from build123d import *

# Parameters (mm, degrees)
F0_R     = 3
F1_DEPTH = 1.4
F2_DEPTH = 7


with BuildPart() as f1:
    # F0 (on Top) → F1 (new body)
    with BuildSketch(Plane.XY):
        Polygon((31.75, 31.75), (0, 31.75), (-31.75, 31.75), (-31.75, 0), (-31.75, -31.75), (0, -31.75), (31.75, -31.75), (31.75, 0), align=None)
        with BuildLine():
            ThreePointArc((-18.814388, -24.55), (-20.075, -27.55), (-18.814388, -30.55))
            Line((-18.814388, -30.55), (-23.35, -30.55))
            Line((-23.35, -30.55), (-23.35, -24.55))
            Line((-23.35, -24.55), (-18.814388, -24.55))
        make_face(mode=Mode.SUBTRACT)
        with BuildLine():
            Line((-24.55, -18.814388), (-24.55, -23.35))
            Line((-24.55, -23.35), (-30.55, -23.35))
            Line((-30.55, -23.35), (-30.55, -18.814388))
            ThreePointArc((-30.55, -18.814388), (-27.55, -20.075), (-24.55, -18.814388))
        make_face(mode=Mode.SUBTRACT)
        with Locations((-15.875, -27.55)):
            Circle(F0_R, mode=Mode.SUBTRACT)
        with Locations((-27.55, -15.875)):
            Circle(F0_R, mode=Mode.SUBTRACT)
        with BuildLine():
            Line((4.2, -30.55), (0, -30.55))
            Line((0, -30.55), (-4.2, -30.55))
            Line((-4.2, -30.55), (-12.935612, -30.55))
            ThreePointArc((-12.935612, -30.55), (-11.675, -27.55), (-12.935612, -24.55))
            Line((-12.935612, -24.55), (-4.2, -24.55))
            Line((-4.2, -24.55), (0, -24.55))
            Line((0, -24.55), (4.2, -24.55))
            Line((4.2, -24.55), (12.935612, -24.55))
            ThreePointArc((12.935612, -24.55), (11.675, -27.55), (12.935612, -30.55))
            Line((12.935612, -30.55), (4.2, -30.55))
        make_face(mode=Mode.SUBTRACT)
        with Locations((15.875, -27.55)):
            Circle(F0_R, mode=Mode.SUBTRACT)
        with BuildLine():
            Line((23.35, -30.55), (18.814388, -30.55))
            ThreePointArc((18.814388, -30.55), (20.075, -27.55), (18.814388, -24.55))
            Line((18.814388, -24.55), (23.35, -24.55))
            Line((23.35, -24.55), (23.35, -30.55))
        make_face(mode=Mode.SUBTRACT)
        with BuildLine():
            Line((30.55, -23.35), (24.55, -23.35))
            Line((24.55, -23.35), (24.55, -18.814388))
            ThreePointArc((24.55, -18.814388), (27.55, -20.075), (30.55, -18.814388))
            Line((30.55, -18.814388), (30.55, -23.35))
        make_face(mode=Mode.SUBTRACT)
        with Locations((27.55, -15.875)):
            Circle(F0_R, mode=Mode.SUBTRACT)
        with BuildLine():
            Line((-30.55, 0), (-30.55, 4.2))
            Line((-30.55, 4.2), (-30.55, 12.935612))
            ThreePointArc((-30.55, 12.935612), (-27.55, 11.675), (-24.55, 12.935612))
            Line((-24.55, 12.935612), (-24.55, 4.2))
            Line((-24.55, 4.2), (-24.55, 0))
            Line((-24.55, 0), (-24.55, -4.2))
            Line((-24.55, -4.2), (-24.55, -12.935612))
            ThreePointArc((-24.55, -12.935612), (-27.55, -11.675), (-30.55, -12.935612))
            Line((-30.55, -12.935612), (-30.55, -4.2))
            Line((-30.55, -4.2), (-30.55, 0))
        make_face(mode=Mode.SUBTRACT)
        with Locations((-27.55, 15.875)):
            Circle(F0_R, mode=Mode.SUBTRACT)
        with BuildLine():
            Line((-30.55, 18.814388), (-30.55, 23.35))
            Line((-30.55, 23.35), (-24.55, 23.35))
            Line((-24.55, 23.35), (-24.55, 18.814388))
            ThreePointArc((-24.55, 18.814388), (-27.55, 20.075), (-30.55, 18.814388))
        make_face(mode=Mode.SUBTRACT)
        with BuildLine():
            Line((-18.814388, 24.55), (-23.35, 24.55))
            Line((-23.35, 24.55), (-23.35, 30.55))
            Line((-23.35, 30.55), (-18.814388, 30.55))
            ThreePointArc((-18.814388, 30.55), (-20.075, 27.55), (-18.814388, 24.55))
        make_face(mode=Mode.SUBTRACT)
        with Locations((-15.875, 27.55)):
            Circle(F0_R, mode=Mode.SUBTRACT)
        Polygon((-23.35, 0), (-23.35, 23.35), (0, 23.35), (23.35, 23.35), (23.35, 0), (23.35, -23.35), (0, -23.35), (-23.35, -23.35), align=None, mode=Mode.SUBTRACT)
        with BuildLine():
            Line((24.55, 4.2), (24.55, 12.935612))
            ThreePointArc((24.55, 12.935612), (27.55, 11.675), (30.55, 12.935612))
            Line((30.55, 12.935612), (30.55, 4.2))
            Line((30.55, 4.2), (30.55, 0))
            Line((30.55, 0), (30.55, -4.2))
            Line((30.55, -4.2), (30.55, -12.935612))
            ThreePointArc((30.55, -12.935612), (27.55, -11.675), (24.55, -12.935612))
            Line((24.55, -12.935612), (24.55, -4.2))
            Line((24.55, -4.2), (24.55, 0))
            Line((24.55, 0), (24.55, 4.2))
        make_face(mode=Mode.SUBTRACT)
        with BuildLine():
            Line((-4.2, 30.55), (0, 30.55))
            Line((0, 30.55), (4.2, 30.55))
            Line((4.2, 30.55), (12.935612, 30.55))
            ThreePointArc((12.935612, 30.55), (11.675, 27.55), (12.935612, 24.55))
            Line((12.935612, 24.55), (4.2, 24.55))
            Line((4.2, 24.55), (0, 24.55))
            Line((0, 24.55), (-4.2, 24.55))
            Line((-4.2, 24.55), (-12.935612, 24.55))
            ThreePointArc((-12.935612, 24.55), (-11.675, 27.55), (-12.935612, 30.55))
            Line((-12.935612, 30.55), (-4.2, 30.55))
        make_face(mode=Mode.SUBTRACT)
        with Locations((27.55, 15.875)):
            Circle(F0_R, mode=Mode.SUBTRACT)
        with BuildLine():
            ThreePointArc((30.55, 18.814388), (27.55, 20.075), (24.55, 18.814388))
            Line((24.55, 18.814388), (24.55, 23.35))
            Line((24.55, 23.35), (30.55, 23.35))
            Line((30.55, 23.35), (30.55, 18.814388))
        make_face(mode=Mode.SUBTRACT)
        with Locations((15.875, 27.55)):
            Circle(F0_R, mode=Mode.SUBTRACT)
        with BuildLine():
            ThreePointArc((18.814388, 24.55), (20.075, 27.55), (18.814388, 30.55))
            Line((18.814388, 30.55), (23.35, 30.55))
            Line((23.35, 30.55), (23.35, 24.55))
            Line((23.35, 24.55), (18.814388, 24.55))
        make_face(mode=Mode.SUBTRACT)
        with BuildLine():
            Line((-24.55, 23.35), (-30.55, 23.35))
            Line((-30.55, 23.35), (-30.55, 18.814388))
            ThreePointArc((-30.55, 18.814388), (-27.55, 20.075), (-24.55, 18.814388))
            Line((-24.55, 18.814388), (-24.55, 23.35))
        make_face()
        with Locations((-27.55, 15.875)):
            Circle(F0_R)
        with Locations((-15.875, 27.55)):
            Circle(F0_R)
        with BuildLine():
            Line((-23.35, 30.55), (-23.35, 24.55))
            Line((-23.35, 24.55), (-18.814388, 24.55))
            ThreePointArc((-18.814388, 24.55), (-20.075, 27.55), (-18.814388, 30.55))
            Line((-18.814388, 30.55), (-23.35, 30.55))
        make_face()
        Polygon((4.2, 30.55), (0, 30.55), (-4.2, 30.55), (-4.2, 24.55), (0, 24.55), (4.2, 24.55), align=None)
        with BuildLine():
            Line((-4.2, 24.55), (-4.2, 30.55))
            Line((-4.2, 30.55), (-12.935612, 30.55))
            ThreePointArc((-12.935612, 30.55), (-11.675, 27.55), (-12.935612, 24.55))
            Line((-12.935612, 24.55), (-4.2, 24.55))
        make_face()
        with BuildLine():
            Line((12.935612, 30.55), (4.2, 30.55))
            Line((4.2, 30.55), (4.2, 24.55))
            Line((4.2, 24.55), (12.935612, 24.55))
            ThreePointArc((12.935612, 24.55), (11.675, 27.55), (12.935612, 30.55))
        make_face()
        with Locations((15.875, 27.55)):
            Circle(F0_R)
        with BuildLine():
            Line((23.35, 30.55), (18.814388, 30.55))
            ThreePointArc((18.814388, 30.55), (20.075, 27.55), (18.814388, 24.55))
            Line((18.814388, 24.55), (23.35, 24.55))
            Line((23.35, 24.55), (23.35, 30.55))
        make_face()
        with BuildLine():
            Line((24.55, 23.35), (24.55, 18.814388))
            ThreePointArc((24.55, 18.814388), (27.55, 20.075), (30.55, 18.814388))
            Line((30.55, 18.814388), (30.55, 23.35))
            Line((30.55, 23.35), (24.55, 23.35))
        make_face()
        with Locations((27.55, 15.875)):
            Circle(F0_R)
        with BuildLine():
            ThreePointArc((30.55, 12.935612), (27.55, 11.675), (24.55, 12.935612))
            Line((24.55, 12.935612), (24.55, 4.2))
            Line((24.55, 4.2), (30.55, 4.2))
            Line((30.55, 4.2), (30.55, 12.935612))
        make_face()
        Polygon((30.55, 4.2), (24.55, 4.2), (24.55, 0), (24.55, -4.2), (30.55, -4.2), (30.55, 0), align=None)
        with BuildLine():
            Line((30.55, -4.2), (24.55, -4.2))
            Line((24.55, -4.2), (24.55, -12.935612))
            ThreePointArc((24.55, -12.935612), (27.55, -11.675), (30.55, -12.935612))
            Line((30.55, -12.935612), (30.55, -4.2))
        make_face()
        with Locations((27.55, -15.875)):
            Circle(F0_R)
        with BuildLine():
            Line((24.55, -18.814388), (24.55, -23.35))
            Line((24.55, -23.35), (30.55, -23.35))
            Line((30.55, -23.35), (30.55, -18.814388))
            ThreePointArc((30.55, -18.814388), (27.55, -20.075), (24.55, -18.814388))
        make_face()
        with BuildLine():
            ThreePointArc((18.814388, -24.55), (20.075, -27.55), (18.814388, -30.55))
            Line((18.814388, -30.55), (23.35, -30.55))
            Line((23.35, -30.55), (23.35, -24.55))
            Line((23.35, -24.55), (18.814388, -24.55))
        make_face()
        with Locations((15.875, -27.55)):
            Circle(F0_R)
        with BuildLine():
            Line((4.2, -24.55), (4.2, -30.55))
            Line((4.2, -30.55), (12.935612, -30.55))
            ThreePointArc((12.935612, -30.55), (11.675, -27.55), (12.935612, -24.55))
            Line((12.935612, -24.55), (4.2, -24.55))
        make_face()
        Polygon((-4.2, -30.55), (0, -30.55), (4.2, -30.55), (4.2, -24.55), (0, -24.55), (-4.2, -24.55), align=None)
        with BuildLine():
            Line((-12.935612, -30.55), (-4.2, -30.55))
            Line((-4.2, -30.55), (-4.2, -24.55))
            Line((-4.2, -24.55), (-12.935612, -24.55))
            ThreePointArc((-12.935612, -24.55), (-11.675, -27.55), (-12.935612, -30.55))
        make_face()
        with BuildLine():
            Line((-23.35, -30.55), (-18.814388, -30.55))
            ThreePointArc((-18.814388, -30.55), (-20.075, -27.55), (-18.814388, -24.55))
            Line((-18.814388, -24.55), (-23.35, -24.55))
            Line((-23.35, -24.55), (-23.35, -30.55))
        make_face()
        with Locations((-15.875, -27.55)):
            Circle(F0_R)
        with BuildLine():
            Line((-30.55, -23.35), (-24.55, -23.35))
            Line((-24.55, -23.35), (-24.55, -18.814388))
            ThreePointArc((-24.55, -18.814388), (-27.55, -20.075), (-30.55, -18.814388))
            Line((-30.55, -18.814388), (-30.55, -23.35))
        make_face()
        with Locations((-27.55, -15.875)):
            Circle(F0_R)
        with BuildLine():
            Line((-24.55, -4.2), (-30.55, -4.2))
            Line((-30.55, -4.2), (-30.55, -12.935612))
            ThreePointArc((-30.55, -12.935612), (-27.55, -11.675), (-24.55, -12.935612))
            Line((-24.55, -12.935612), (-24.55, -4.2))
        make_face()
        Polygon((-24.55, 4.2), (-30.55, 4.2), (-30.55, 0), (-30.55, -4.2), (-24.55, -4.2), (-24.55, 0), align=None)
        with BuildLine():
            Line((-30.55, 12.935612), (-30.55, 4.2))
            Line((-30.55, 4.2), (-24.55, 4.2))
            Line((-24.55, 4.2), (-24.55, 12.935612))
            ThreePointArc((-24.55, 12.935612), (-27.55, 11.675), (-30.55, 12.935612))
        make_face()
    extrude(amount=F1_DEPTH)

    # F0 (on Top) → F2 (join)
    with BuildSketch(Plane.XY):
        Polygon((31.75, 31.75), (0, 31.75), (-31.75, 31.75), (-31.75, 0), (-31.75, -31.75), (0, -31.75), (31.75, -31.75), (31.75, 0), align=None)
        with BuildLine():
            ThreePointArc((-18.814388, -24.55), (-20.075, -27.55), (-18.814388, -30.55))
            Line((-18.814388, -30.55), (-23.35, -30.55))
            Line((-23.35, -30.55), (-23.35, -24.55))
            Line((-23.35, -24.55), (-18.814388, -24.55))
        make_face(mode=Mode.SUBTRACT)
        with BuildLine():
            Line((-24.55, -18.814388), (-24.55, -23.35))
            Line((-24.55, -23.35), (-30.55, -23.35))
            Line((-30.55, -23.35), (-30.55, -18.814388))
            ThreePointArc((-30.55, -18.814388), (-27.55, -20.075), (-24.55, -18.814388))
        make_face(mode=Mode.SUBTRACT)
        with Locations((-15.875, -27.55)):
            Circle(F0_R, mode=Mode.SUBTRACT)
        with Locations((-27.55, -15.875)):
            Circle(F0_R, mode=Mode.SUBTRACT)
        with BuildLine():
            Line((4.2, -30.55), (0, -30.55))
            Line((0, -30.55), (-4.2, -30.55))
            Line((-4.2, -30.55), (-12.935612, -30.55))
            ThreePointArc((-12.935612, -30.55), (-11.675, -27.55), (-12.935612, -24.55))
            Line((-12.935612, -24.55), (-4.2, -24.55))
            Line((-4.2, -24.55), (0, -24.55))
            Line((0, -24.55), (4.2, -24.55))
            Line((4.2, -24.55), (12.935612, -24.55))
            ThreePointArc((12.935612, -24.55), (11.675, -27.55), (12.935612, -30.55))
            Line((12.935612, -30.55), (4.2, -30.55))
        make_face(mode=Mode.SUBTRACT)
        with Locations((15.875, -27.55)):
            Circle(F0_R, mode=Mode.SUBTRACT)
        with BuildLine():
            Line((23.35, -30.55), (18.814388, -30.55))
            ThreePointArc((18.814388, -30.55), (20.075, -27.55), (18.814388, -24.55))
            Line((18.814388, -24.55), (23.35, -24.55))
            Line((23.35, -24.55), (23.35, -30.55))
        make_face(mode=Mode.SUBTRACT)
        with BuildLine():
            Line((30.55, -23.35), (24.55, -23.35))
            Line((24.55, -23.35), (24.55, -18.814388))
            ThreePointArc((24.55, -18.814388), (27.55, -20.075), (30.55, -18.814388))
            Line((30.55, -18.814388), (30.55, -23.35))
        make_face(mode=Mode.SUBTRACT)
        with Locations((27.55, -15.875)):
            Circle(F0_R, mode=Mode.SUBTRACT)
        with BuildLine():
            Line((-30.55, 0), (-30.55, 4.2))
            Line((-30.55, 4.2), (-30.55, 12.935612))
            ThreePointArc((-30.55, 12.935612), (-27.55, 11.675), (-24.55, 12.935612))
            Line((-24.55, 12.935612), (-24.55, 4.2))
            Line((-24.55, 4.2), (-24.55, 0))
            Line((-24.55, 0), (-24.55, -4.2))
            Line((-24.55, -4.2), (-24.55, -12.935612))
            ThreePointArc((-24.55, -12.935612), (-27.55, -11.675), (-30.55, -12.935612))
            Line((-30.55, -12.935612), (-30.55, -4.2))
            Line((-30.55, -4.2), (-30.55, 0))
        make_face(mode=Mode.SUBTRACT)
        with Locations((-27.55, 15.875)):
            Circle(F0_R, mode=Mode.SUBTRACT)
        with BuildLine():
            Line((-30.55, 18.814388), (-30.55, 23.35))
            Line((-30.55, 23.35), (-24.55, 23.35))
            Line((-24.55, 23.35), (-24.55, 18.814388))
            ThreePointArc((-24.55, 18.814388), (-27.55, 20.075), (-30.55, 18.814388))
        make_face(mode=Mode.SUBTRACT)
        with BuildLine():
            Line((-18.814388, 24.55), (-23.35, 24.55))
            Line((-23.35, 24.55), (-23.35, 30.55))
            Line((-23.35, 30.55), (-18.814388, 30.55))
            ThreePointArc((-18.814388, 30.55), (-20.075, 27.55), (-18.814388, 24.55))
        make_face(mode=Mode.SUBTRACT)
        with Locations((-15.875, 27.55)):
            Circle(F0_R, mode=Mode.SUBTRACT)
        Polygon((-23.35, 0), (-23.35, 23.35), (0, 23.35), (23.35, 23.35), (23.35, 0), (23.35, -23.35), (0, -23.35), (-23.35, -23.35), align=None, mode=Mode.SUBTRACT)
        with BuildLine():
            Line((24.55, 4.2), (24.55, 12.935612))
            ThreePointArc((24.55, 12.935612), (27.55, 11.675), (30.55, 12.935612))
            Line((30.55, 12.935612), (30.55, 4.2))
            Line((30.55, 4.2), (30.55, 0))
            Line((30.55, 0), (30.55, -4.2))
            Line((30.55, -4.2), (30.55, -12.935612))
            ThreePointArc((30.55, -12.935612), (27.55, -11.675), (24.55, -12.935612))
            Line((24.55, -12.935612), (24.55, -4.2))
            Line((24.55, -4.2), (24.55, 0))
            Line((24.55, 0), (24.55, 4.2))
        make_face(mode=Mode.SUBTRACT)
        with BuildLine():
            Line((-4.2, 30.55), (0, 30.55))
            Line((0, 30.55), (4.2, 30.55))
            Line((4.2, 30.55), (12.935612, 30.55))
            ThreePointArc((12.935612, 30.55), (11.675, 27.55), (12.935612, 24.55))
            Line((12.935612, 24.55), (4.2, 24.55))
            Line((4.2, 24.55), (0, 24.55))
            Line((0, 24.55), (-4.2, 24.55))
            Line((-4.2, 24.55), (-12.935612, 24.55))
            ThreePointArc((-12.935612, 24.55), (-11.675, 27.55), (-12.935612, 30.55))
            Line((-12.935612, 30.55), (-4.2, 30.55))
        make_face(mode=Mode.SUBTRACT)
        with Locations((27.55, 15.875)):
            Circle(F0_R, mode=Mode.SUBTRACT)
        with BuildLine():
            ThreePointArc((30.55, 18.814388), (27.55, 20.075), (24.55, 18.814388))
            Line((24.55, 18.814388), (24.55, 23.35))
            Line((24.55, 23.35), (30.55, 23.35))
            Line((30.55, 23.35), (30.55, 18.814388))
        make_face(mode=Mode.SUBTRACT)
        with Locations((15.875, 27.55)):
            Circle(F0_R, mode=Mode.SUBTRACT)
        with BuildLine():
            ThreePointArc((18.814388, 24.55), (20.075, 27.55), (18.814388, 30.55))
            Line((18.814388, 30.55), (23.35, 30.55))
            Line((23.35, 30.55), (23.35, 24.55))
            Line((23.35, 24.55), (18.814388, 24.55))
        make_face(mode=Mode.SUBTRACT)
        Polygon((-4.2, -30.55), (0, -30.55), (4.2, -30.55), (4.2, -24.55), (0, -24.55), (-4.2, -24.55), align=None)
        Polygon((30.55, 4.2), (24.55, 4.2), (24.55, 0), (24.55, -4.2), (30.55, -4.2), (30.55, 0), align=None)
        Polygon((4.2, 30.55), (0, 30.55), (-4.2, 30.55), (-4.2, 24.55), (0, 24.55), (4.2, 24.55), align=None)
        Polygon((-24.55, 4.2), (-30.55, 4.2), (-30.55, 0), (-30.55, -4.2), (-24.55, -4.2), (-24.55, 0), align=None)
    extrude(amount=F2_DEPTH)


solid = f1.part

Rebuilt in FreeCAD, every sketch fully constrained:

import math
import FreeCAD as App
import Part
import Sketcher
from FreeCAD import Vector

doc = App.newDocument("Part")
body = doc.addObject("PartDesign::Body", "Body")

sketch1 = doc.addObject("Sketcher::SketchObject", "Sketch")
body.addObject(sketch1)
sketch1.AttachmentSupport = (doc.XY_Plane, [""])
sketch1.MapMode = "FlatFace"
sketch1.addGeometry(Part.LineSegment(Vector(32, 32, 0), Vector(-32, 32, 0)), False)
sketch1.addGeometry(Part.LineSegment(Vector(-32, 32, 0), Vector(-32, -32, 0)), False)
sketch1.addGeometry(Part.LineSegment(Vector(-32, -32, 0), Vector(32, -32, 0)), False)
sketch1.addGeometry(Part.LineSegment(Vector(32, -32, 0), Vector(32, 32, 0)), False)
sketch1.addGeometry(Part.LineSegment(Vector(-23, -23, 0), Vector(-23, 23, 0)), False)
sketch1.addGeometry(Part.LineSegment(Vector(-23, 23, 0), Vector(23, 23, 0)), False)
sketch1.addGeometry(Part.LineSegment(Vector(23, 23, 0), Vector(23, -23, 0)), False)
sketch1.addGeometry(Part.LineSegment(Vector(23, -23, 0), Vector(-23, -23, 0)), False)
sketch1.addConstraint(Sketcher.Constraint("Coincident", 0, 2, 1, 1))
sketch1.addConstraint(Sketcher.Constraint("Coincident", 1, 2, 2, 1))
sketch1.addConstraint(Sketcher.Constraint("Coincident", 2, 2, 3, 1))
sketch1.addConstraint(Sketcher.Constraint("Coincident", 3, 2, 0, 1))
sketch1.addConstraint(Sketcher.Constraint("Coincident", 4, 2, 5, 1))
sketch1.addConstraint(Sketcher.Constraint("Coincident", 5, 2, 6, 1))
sketch1.addConstraint(Sketcher.Constraint("Coincident", 6, 2, 7, 1))
sketch1.addConstraint(Sketcher.Constraint("Coincident", 7, 2, 4, 1))
sketch1.addConstraint(Sketcher.Constraint("Horizontal", 0))
sketch1.addConstraint(Sketcher.Constraint("Vertical", 1))
sketch1.addConstraint(Sketcher.Constraint("Horizontal", 2))
sketch1.addConstraint(Sketcher.Constraint("Vertical", 3))
sketch1.addConstraint(Sketcher.Constraint("Vertical", 4))
sketch1.addConstraint(Sketcher.Constraint("Horizontal", 5))
sketch1.addConstraint(Sketcher.Constraint("Vertical", 6))
sketch1.addConstraint(Sketcher.Constraint("Horizontal", 7))
sketch1.addConstraint(Sketcher.Constraint("Symmetric", 0, 2, 2, 2, -1, 1))
sketch1.addConstraint(Sketcher.Constraint("Symmetric", 4, 2, 6, 2, -1, 1))
sketch1.addConstraint(Sketcher.Constraint("Equal", 2, 1))
sketch1.addConstraint(Sketcher.Constraint("Equal", 7, 4))
sketch1.addConstraint(Sketcher.Constraint("DistanceX", 0, 2, 0, 1, 63.5))
sketch1.addConstraint(Sketcher.Constraint("DistanceX", 5, 1, 5, 2, 46.7))
pad1 = doc.addObject("PartDesign::Pad", "Pad")
body.addObject(pad1)
pad1.Profile = sketch1
pad1.Length = 1.4

sketch2 = doc.addObject("Sketcher::SketchObject", "Sketch001")
body.addObject(sketch2)
sketch2.AttachmentSupport = (doc.XY_Plane, [""])
sketch2.MapMode = "FlatFace"
sketch2.addGeometry(Part.LineSegment(Vector(31.8, 31.8, 0), Vector(-31.8, 31.8, 0)), False)
sketch2.addGeometry(Part.LineSegment(Vector(-31.8, 31.8, 0), Vector(-31.8, -31.8, 0)), False)
sketch2.addGeometry(Part.LineSegment(Vector(-31.8, -31.8, 0), Vector(31.8, -31.8, 0)), False)
sketch2.addGeometry(Part.LineSegment(Vector(31.8, -31.8, 0), Vector(31.8, 31.8, 0)), False)
sketch2.addGeometry(Part.LineSegment(Vector(-23.4, -24.6, 0), Vector(-18.8, -24.6, 0)), False)
sketch2.addGeometry(Part.ArcOfCircle(Part.Circle(Vector(-15.9, -27.6, 0), Vector(0, 0, 1), 4.2), math.radians(134), math.radians(226)), False)
sketch2.addGeometry(Part.LineSegment(Vector(-18.8, -30.6, 0), Vector(-23.4, -30.6, 0)), False)
sketch2.addGeometry(Part.LineSegment(Vector(-23.4, -30.6, 0), Vector(-23.4, -24.6, 0)), False)
sketch2.addGeometry(Part.Circle(Vector(-15.9, -27.6, 0), Vector(0, 0, 1), 3), False)
sketch2.addGeometry(Part.ArcOfCircle(Part.Circle(Vector(-27.6, -15.9, 0), Vector(0, 0, 1), 4.2), math.radians(-136), math.radians(-44)), False)
sketch2.addGeometry(Part.LineSegment(Vector(-24.6, -18.8, 0), Vector(-24.6, -23.4, 0)), False)
sketch2.addGeometry(Part.LineSegment(Vector(-24.6, -23.4, 0), Vector(-30.6, -23.4, 0)), False)
sketch2.addGeometry(Part.LineSegment(Vector(-30.6, -23.4, 0), Vector(-30.6, -18.8, 0)), False)
sketch2.addGeometry(Part.Circle(Vector(-27.6, -15.9, 0), Vector(0, 0, 1), 3), False)
sketch2.addGeometry(Part.LineSegment(Vector(12.9, -30.6, 0), Vector(4.2, -30.6, 0)), False)
sketch2.addGeometry(Part.LineSegment(Vector(4.2, -30.6, 0), Vector(4.2, -24.6, 0)), False)
sketch2.addGeometry(Part.LineSegment(Vector(4.2, -24.6, 0), Vector(12.9, -24.6, 0)), False)
sketch2.addGeometry(Part.ArcOfCircle(Part.Circle(Vector(15.9, -27.6, 0), Vector(0, 0, 1), 4.2), math.radians(134), math.radians(226)), False)
sketch2.addGeometry(Part.LineSegment(Vector(-4.2, -30.6, 0), Vector(-12.9, -30.6, 0)), False)
sketch2.addGeometry(Part.ArcOfCircle(Part.Circle(Vector(-15.9, -27.6, 0), Vector(0, 0, 1), 4.2), math.radians(-46), math.radians(46)), False)
sketch2.addGeometry(Part.LineSegment(Vector(-12.9, -24.6, 0), Vector(-4.2, -24.6, 0)), False)
sketch2.addGeometry(Part.LineSegment(Vector(-4.2, -24.6, 0), Vector(-4.2, -30.6, 0)), False)
sketch2.addGeometry(Part.Circle(Vector(15.9, -27.6, 0), Vector(0, 0, 1), 3), False)
sketch2.addGeometry(Part.LineSegment(Vector(23.4, -24.6, 0), Vector(23.4, -30.6, 0)), False)
sketch2.addGeometry(Part.LineSegment(Vector(23.4, -30.6, 0), Vector(18.8, -30.6, 0)), False)
sketch2.addGeometry(Part.ArcOfCircle(Part.Circle(Vector(15.9, -27.6, 0), Vector(0, 0, 1), 4.2), math.radians(-46), math.radians(46)), False)
sketch2.addGeometry(Part.LineSegment(Vector(18.8, -24.6, 0), Vector(23.4, -24.6, 0)), False)
sketch2.addGeometry(Part.LineSegment(Vector(30.6, -18.8, 0), Vector(30.6, -23.4, 0)), False)
sketch2.addGeometry(Part.LineSegment(Vector(30.6, -23.4, 0), Vector(24.6, -23.4, 0)), False)
sketch2.addGeometry(Part.LineSegment(Vector(24.6, -23.4, 0), Vector(24.6, -18.8, 0)), False)
sketch2.addGeometry(Part.ArcOfCircle(Part.Circle(Vector(27.6, -15.9, 0), Vector(0, 0, 1), 4.2), math.radians(-136), math.radians(-44)), False)
sketch2.addGeometry(Part.Circle(Vector(27.6, -15.9, 0), Vector(0, 0, 1), 3), False)
sketch2.addGeometry(Part.LineSegment(Vector(-30.6, -12.9, 0), Vector(-30.6, -4.2, 0)), False)
sketch2.addGeometry(Part.LineSegment(Vector(-30.6, -4.2, 0), Vector(-24.6, -4.2, 0)), False)
sketch2.addGeometry(Part.LineSegment(Vector(-24.6, -4.2, 0), Vector(-24.6, -12.9, 0)), False)
sketch2.addGeometry(Part.ArcOfCircle(Part.Circle(Vector(-27.6, -15.9, 0), Vector(0, 0, 1), 4.2), math.radians(44), math.radians(136)), False)
sketch2.addGeometry(Part.LineSegment(Vector(-30.6, 4.2, 0), Vector(-30.6, 12.9, 0)), False)
sketch2.addGeometry(Part.ArcOfCircle(Part.Circle(Vector(-27.6, 15.9, 0), Vector(0, 0, 1), 4.2), math.radians(-136), math.radians(-44)), False)
sketch2.addGeometry(Part.LineSegment(Vector(-24.6, 12.9, 0), Vector(-24.6, 4.2, 0)), False)
sketch2.addGeometry(Part.LineSegment(Vector(-24.6, 4.2, 0), Vector(-30.6, 4.2, 0)), False)
sketch2.addGeometry(Part.Circle(Vector(-27.6, 15.9, 0), Vector(0, 0, 1), 3), False)
sketch2.addGeometry(Part.ArcOfCircle(Part.Circle(Vector(-27.6, 15.9, 0), Vector(0, 0, 1), 4.2), math.radians(44), math.radians(136)), False)
sketch2.addGeometry(Part.LineSegment(Vector(-30.6, 18.8, 0), Vector(-30.6, 23.4, 0)), False)
sketch2.addGeometry(Part.LineSegment(Vector(-30.6, 23.4, 0), Vector(-24.6, 23.4, 0)), False)
sketch2.addGeometry(Part.LineSegment(Vector(-24.6, 23.4, 0), Vector(-24.6, 18.8, 0)), False)
sketch2.addGeometry(Part.ArcOfCircle(Part.Circle(Vector(-15.9, 27.6, 0), Vector(0, 0, 1), 4.2), math.radians(134), math.radians(226)), False)
sketch2.addGeometry(Part.LineSegment(Vector(-18.8, 24.6, 0), Vector(-23.4, 24.6, 0)), False)
sketch2.addGeometry(Part.LineSegment(Vector(-23.4, 24.6, 0), Vector(-23.4, 30.6, 0)), False)
sketch2.addGeometry(Part.LineSegment(Vector(-23.4, 30.6, 0), Vector(-18.8, 30.6, 0)), False)
sketch2.addGeometry(Part.Circle(Vector(-15.9, 27.6, 0), Vector(0, 0, 1), 3), False)
sketch2.addGeometry(Part.LineSegment(Vector(-23.4, -23.4, 0), Vector(-23.4, 23.4, 0)), False)
sketch2.addGeometry(Part.LineSegment(Vector(-23.4, 23.4, 0), Vector(23.4, 23.4, 0)), False)
sketch2.addGeometry(Part.LineSegment(Vector(23.4, 23.4, 0), Vector(23.4, -23.4, 0)), False)
sketch2.addGeometry(Part.LineSegment(Vector(23.4, -23.4, 0), Vector(-23.4, -23.4, 0)), False)
sketch2.addGeometry(Part.LineSegment(Vector(24.6, -12.9, 0), Vector(24.6, -4.2, 0)), False)
sketch2.addGeometry(Part.LineSegment(Vector(24.6, -4.2, 0), Vector(30.6, -4.2, 0)), False)
sketch2.addGeometry(Part.LineSegment(Vector(30.6, -4.2, 0), Vector(30.6, -12.9, 0)), False)
sketch2.addGeometry(Part.ArcOfCircle(Part.Circle(Vector(27.6, -15.9, 0), Vector(0, 0, 1), 4.2), math.radians(44), math.radians(136)), False)
sketch2.addGeometry(Part.LineSegment(Vector(24.6, 4.2, 0), Vector(24.6, 12.9, 0)), False)
sketch2.addGeometry(Part.ArcOfCircle(Part.Circle(Vector(27.6, 15.9, 0), Vector(0, 0, 1), 4.2), math.radians(-136), math.radians(-44)), False)
sketch2.addGeometry(Part.LineSegment(Vector(30.6, 12.9, 0), Vector(30.6, 4.2, 0)), False)
sketch2.addGeometry(Part.LineSegment(Vector(30.6, 4.2, 0), Vector(24.6, 4.2, 0)), False)
sketch2.addGeometry(Part.LineSegment(Vector(-12.9, 30.6, 0), Vector(-4.2, 30.6, 0)), False)
sketch2.addGeometry(Part.LineSegment(Vector(-4.2, 30.6, 0), Vector(-4.2, 24.6, 0)), False)
sketch2.addGeometry(Part.LineSegment(Vector(-4.2, 24.6, 0), Vector(-12.9, 24.6, 0)), False)
sketch2.addGeometry(Part.ArcOfCircle(Part.Circle(Vector(-15.9, 27.6, 0), Vector(0, 0, 1), 4.2), math.radians(-46), math.radians(46)), False)
sketch2.addGeometry(Part.LineSegment(Vector(4.2, 30.6, 0), Vector(12.9, 30.6, 0)), False)
sketch2.addGeometry(Part.ArcOfCircle(Part.Circle(Vector(15.9, 27.6, 0), Vector(0, 0, 1), 4.2), math.radians(134), math.radians(226)), False)
sketch2.addGeometry(Part.LineSegment(Vector(12.9, 24.6, 0), Vector(4.2, 24.6, 0)), False)
sketch2.addGeometry(Part.LineSegment(Vector(4.2, 24.6, 0), Vector(4.2, 30.6, 0)), False)
sketch2.addGeometry(Part.Circle(Vector(27.6, 15.9, 0), Vector(0, 0, 1), 3), False)
sketch2.addGeometry(Part.LineSegment(Vector(30.6, 23.4, 0), Vector(30.6, 18.8, 0)), False)
sketch2.addGeometry(Part.ArcOfCircle(Part.Circle(Vector(27.6, 15.9, 0), Vector(0, 0, 1), 4.2), math.radians(44), math.radians(136)), False)
sketch2.addGeometry(Part.LineSegment(Vector(24.6, 18.8, 0), Vector(24.6, 23.4, 0)), False)
sketch2.addGeometry(Part.LineSegment(Vector(24.6, 23.4, 0), Vector(30.6, 23.4, 0)), False)
sketch2.addGeometry(Part.Circle(Vector(15.9, 27.6, 0), Vector(0, 0, 1), 3), False)
sketch2.addGeometry(Part.LineSegment(Vector(23.4, 24.6, 0), Vector(18.8, 24.6, 0)), False)
sketch2.addGeometry(Part.ArcOfCircle(Part.Circle(Vector(15.9, 27.6, 0), Vector(0, 0, 1), 4.2), math.radians(-46), math.radians(46)), False)
sketch2.addGeometry(Part.LineSegment(Vector(18.8, 30.6, 0), Vector(23.4, 30.6, 0)), False)
sketch2.addGeometry(Part.LineSegment(Vector(23.4, 30.6, 0), Vector(23.4, 24.6, 0)), False)
sketch2.addConstraint(Sketcher.Constraint("Coincident", 0, 2, 1, 1))
sketch2.addConstraint(Sketcher.Constraint("Coincident", 1, 2, 2, 1))
sketch2.addConstraint(Sketcher.Constraint("Coincident", 2, 2, 3, 1))
sketch2.addConstraint(Sketcher.Constraint("Coincident", 3, 2, 0, 1))
sketch2.addConstraint(Sketcher.Constraint("Coincident", 4, 2, 5, 1))
sketch2.addConstraint(Sketcher.Constraint("Coincident", 5, 2, 6, 1))
sketch2.addConstraint(Sketcher.Constraint("Coincident", 6, 2, 7, 1))
sketch2.addConstraint(Sketcher.Constraint("Coincident", 7, 2, 4, 1))
sketch2.addConstraint(Sketcher.Constraint("Coincident", 9, 2, 10, 1))
sketch2.addConstraint(Sketcher.Constraint("Coincident", 10, 2, 11, 1))
sketch2.addConstraint(Sketcher.Constraint("Coincident", 11, 2, 12, 1))
sketch2.addConstraint(Sketcher.Constraint("Coincident", 12, 2, 9, 1))
sketch2.addConstraint(Sketcher.Constraint("Coincident", 14, 2, 15, 1))
sketch2.addConstraint(Sketcher.Constraint("Coincident", 15, 2, 16, 1))
sketch2.addConstraint(Sketcher.Constraint("Coincident", 16, 2, 17, 1))
sketch2.addConstraint(Sketcher.Constraint("Coincident", 17, 2, 14, 1))
sketch2.addConstraint(Sketcher.Constraint("Coincident", 18, 2, 19, 1))
sketch2.addConstraint(Sketcher.Constraint("Coincident", 19, 2, 20, 1))
sketch2.addConstraint(Sketcher.Constraint("Coincident", 20, 2, 21, 1))
sketch2.addConstraint(Sketcher.Constraint("Coincident", 21, 2, 18, 1))
sketch2.addConstraint(Sketcher.Constraint("Coincident", 23, 2, 24, 1))
sketch2.addConstraint(Sketcher.Constraint("Coincident", 24, 2, 25, 1))
sketch2.addConstraint(Sketcher.Constraint("Coincident", 25, 2, 26, 1))
sketch2.addConstraint(Sketcher.Constraint("Coincident", 26, 2, 23, 1))
sketch2.addConstraint(Sketcher.Constraint("Coincident", 27, 2, 28, 1))
sketch2.addConstraint(Sketcher.Constraint("Coincident", 28, 2, 29, 1))
sketch2.addConstraint(Sketcher.Constraint("Coincident", 29, 2, 30, 1))
sketch2.addConstraint(Sketcher.Constraint("Coincident", 30, 2, 27, 1))
sketch2.addConstraint(Sketcher.Constraint("Coincident", 32, 2, 33, 1))
sketch2.addConstraint(Sketcher.Constraint("Coincident", 33, 2, 34, 1))
sketch2.addConstraint(Sketcher.Constraint("Coincident", 34, 2, 35, 1))
sketch2.addConstraint(Sketcher.Constraint("Coincident", 35, 2, 32, 1))
sketch2.addConstraint(Sketcher.Constraint("Coincident", 36, 2, 37, 1))
sketch2.addConstraint(Sketcher.Constraint("Coincident", 37, 2, 38, 1))
sketch2.addConstraint(Sketcher.Constraint("Coincident", 38, 2, 39, 1))
sketch2.addConstraint(Sketcher.Constraint("Coincident", 39, 2, 36, 1))
sketch2.addConstraint(Sketcher.Constraint("Coincident", 41, 2, 42, 1))
sketch2.addConstraint(Sketcher.Constraint("Coincident", 42, 2, 43, 1))
sketch2.addConstraint(Sketcher.Constraint("Coincident", 43, 2, 44, 1))
sketch2.addConstraint(Sketcher.Constraint("Coincident", 44, 2, 41, 1))
sketch2.addConstraint(Sketcher.Constraint("Coincident", 45, 2, 46, 1))
sketch2.addConstraint(Sketcher.Constraint("Coincident", 46, 2, 47, 1))
sketch2.addConstraint(Sketcher.Constraint("Coincident", 47, 2, 48, 1))
sketch2.addConstraint(Sketcher.Constraint("Coincident", 48, 2, 45, 1))
sketch2.addConstraint(Sketcher.Constraint("Coincident", 50, 2, 51, 1))
sketch2.addConstraint(Sketcher.Constraint("Coincident", 51, 2, 52, 1))
sketch2.addConstraint(Sketcher.Constraint("Coincident", 52, 2, 53, 1))
sketch2.addConstraint(Sketcher.Constraint("Coincident", 53, 2, 50, 1))
sketch2.addConstraint(Sketcher.Constraint("Coincident", 54, 2, 55, 1))
sketch2.addConstraint(Sketcher.Constraint("Coincident", 55, 2, 56, 1))
sketch2.addConstraint(Sketcher.Constraint("Coincident", 56, 2, 57, 1))
sketch2.addConstraint(Sketcher.Constraint("Coincident", 57, 2, 54, 1))
sketch2.addConstraint(Sketcher.Constraint("Coincident", 58, 2, 59, 1))
sketch2.addConstraint(Sketcher.Constraint("Coincident", 59, 2, 60, 1))
sketch2.addConstraint(Sketcher.Constraint("Coincident", 60, 2, 61, 1))
sketch2.addConstraint(Sketcher.Constraint("Coincident", 61, 2, 58, 1))
sketch2.addConstraint(Sketcher.Constraint("Coincident", 62, 2, 63, 1))
sketch2.addConstraint(Sketcher.Constraint("Coincident", 63, 2, 64, 1))
sketch2.addConstraint(Sketcher.Constraint("Coincident", 64, 2, 65, 1))
sketch2.addConstraint(Sketcher.Constraint("Coincident", 65, 2, 62, 1))
sketch2.addConstraint(Sketcher.Constraint("Coincident", 66, 2, 67, 1))
sketch2.addConstraint(Sketcher.Constraint("Coincident", 67, 2, 68, 1))
sketch2.addConstraint(Sketcher.Constraint("Coincident", 68, 2, 69, 1))
sketch2.addConstraint(Sketcher.Constraint("Coincident", 69, 2, 66, 1))
sketch2.addConstraint(Sketcher.Constraint("Coincident", 71, 2, 72, 1))
sketch2.addConstraint(Sketcher.Constraint("Coincident", 72, 2, 73, 1))
sketch2.addConstraint(Sketcher.Constraint("Coincident", 73, 2, 74, 1))
sketch2.addConstraint(Sketcher.Constraint("Coincident", 74, 2, 71, 1))
sketch2.addConstraint(Sketcher.Constraint("Coincident", 76, 2, 77, 1))
sketch2.addConstraint(Sketcher.Constraint("Coincident", 77, 2, 78, 1))
sketch2.addConstraint(Sketcher.Constraint("Coincident", 78, 2, 79, 1))
sketch2.addConstraint(Sketcher.Constraint("Coincident", 79, 2, 76, 1))
sketch2.addConstraint(Sketcher.Constraint("Horizontal", 0))
sketch2.addConstraint(Sketcher.Constraint("Vertical", 1))
sketch2.addConstraint(Sketcher.Constraint("Horizontal", 2))
sketch2.addConstraint(Sketcher.Constraint("Vertical", 3))
sketch2.addConstraint(Sketcher.Constraint("Horizontal", 4))
sketch2.addConstraint(Sketcher.Constraint("Horizontal", 6))
sketch2.addConstraint(Sketcher.Constraint("Vertical", 7))
sketch2.addConstraint(Sketcher.Constraint("Vertical", 10))
sketch2.addConstraint(Sketcher.Constraint("Horizontal", 11))
sketch2.addConstraint(Sketcher.Constraint("Vertical", 12))
sketch2.addConstraint(Sketcher.Constraint("Horizontal", 14))
sketch2.addConstraint(Sketcher.Constraint("Vertical", 15))
sketch2.addConstraint(Sketcher.Constraint("Horizontal", 16))
sketch2.addConstraint(Sketcher.Constraint("Horizontal", 18))
sketch2.addConstraint(Sketcher.Constraint("Horizontal", 20))
sketch2.addConstraint(Sketcher.Constraint("Vertical", 21))
sketch2.addConstraint(Sketcher.Constraint("Vertical", 23))
sketch2.addConstraint(Sketcher.Constraint("Horizontal", 24))
sketch2.addConstraint(Sketcher.Constraint("Horizontal", 26))
sketch2.addConstraint(Sketcher.Constraint("Vertical", 27))
sketch2.addConstraint(Sketcher.Constraint("Horizontal", 28))
sketch2.addConstraint(Sketcher.Constraint("Vertical", 29))
sketch2.addConstraint(Sketcher.Constraint("Vertical", 32))
sketch2.addConstraint(Sketcher.Constraint("Horizontal", 33))
sketch2.addConstraint(Sketcher.Constraint("Vertical", 34))
sketch2.addConstraint(Sketcher.Constraint("Vertical", 36))
sketch2.addConstraint(Sketcher.Constraint("Vertical", 38))
sketch2.addConstraint(Sketcher.Constraint("Horizontal", 39))
sketch2.addConstraint(Sketcher.Constraint("Vertical", 42))
sketch2.addConstraint(Sketcher.Constraint("Horizontal", 43))
sketch2.addConstraint(Sketcher.Constraint("Vertical", 44))
sketch2.addConstraint(Sketcher.Constraint("Horizontal", 46))
sketch2.addConstraint(Sketcher.Constraint("Vertical", 47))
sketch2.addConstraint(Sketcher.Constraint("Horizontal", 48))
sketch2.addConstraint(Sketcher.Constraint("Vertical", 50))
sketch2.addConstraint(Sketcher.Constraint("Horizontal", 51))
sketch2.addConstraint(Sketcher.Constraint("Vertical", 52))
sketch2.addConstraint(Sketcher.Constraint("Horizontal", 53))
sketch2.addConstraint(Sketcher.Constraint("Vertical", 54))
sketch2.addConstraint(Sketcher.Constraint("Horizontal", 55))
sketch2.addConstraint(Sketcher.Constraint("Vertical", 56))
sketch2.addConstraint(Sketcher.Constraint("Vertical", 58))
sketch2.addConstraint(Sketcher.Constraint("Vertical", 60))
sketch2.addConstraint(Sketcher.Constraint("Horizontal", 61))
sketch2.addConstraint(Sketcher.Constraint("Horizontal", 62))
sketch2.addConstraint(Sketcher.Constraint("Vertical", 63))
sketch2.addConstraint(Sketcher.Constraint("Horizontal", 64))
sketch2.addConstraint(Sketcher.Constraint("Horizontal", 66))
sketch2.addConstraint(Sketcher.Constraint("Horizontal", 68))
sketch2.addConstraint(Sketcher.Constraint("Vertical", 69))
sketch2.addConstraint(Sketcher.Constraint("Vertical", 71))
sketch2.addConstraint(Sketcher.Constraint("Vertical", 73))
sketch2.addConstraint(Sketcher.Constraint("Horizontal", 74))
sketch2.addConstraint(Sketcher.Constraint("Horizontal", 76))
sketch2.addConstraint(Sketcher.Constraint("Horizontal", 78))
sketch2.addConstraint(Sketcher.Constraint("Vertical", 79))
sketch2.addConstraint(Sketcher.Constraint("Coincident", 8, 3, 5, 3))
sketch2.addConstraint(Sketcher.Constraint("Coincident", 13, 3, 9, 3))
sketch2.addConstraint(Sketcher.Constraint("Coincident", 19, 3, 5, 3))
sketch2.addConstraint(Sketcher.Constraint("Coincident", 22, 3, 17, 3))
sketch2.addConstraint(Sketcher.Constraint("Coincident", 25, 3, 17, 3))
sketch2.addConstraint(Sketcher.Constraint("Coincident", 31, 3, 30, 3))
sketch2.addConstraint(Sketcher.Constraint("Coincident", 35, 3, 9, 3))
sketch2.addConstraint(Sketcher.Constraint("Coincident", 40, 3, 37, 3))
sketch2.addConstraint(Sketcher.Constraint("Coincident", 41, 3, 37, 3))
sketch2.addConstraint(Sketcher.Constraint("Coincident", 49, 3, 45, 3))
sketch2.addConstraint(Sketcher.Constraint("Coincident", 57, 3, 30, 3))
sketch2.addConstraint(Sketcher.Constraint("Coincident", 65, 3, 45, 3))
sketch2.addConstraint(Sketcher.Constraint("Coincident", 70, 3, 59, 3))
sketch2.addConstraint(Sketcher.Constraint("Coincident", 72, 3, 59, 3))
sketch2.addConstraint(Sketcher.Constraint("Coincident", 75, 3, 67, 3))
sketch2.addConstraint(Sketcher.Constraint("Coincident", 77, 3, 67, 3))
sketch2.addConstraint(Sketcher.Constraint("Equal", 5, 9))
sketch2.addConstraint(Sketcher.Constraint("Equal", 8, 13))
sketch2.addConstraint(Sketcher.Constraint("Equal", 9, 17))
sketch2.addConstraint(Sketcher.Constraint("Equal", 17, 19))
sketch2.addConstraint(Sketcher.Constraint("Equal", 13, 22))
sketch2.addConstraint(Sketcher.Constraint("Equal", 19, 25))
sketch2.addConstraint(Sketcher.Constraint("Equal", 25, 30))
sketch2.addConstraint(Sketcher.Constraint("Equal", 22, 31))
sketch2.addConstraint(Sketcher.Constraint("Equal", 30, 35))
sketch2.addConstraint(Sketcher.Constraint("Equal", 35, 37))
sketch2.addConstraint(Sketcher.Constraint("Equal", 31, 40))
sketch2.addConstraint(Sketcher.Constraint("Equal", 37, 41))
sketch2.addConstraint(Sketcher.Constraint("Equal", 41, 45))
sketch2.addConstraint(Sketcher.Constraint("Equal", 40, 49))
sketch2.addConstraint(Sketcher.Constraint("Equal", 45, 57))
sketch2.addConstraint(Sketcher.Constraint("Equal", 57, 59))
sketch2.addConstraint(Sketcher.Constraint("Equal", 59, 65))
sketch2.addConstraint(Sketcher.Constraint("Equal", 65, 67))
sketch2.addConstraint(Sketcher.Constraint("Equal", 49, 70))
sketch2.addConstraint(Sketcher.Constraint("Equal", 67, 72))
sketch2.addConstraint(Sketcher.Constraint("Equal", 70, 75))
sketch2.addConstraint(Sketcher.Constraint("Equal", 72, 77))
sketch2.addConstraint(Sketcher.Constraint("Symmetric", 30, 3, 37, 3, -1, 1))
sketch2.addConstraint(Sketcher.Constraint("Symmetric", 17, 3, 45, 3, -1, 1))
sketch2.addConstraint(Sketcher.Constraint("Symmetric", 9, 3, 59, 3, -1, 1))
sketch2.addConstraint(Sketcher.Constraint("Symmetric", 5, 3, 67, 3, -1, 1))
sketch2.addConstraint(Sketcher.Constraint("Symmetric", 0, 2, 2, 2, -1, 1))
sketch2.addConstraint(Sketcher.Constraint("Symmetric", 27, 2, 42, 2, -1, 1))
sketch2.addConstraint(Sketcher.Constraint("Symmetric", 26, 2, 46, 2, -1, 1))
sketch2.addConstraint(Sketcher.Constraint("Symmetric", 50, 2, 52, 2, -1, 1))
sketch2.addConstraint(Sketcher.Constraint("Symmetric", 38, 2, 54, 2, -1, 1))
sketch2.addConstraint(Sketcher.Constraint("Symmetric", 32, 2, 60, 2, -1, 1))
sketch2.addConstraint(Sketcher.Constraint("Symmetric", 14, 2, 62, 2, -1, 1))
sketch2.addConstraint(Sketcher.Constraint("Symmetric", 20, 2, 68, 2, -1, 1))
sketch2.addConstraint(Sketcher.Constraint("Symmetric", 10, 2, 73, 2, -1, 1))
sketch2.addConstraint(Sketcher.Constraint("Symmetric", 6, 2, 78, 2, -1, 1))
sketch2.addConstraint(Sketcher.Constraint("Symmetric", 5, 3, 17, 3, -2))
sketch2.addConstraint(Sketcher.Constraint("Symmetric", 9, 3, 30, 3, -2))
sketch2.addConstraint(Sketcher.Constraint("Symmetric", 15, 2, 20, 2, -2))
sketch2.addConstraint(Sketcher.Constraint("Symmetric", 6, 2, 23, 2, -2))
sketch2.addConstraint(Sketcher.Constraint("Symmetric", 11, 2, 27, 2, -2))
sketch2.addConstraint(Sketcher.Constraint("Symmetric", 33, 2, 54, 2, -2))
sketch2.addConstraint(Sketcher.Constraint("Horizontal", 9, 2, 12, 2))
sketch2.addConstraint(Sketcher.Constraint("Horizontal", 6, 2, 14, 2))
sketch2.addConstraint(Sketcher.Constraint("Horizontal", 7, 2, 15, 2))
sketch2.addConstraint(Sketcher.Constraint("Horizontal", 17, 2, 18, 2))
sketch2.addConstraint(Sketcher.Constraint("Horizontal", 20, 2, 25, 2))
sketch2.addConstraint(Sketcher.Constraint("Horizontal", 12, 2, 29, 2))
sketch2.addConstraint(Sketcher.Constraint("Horizontal", 34, 2, 35, 2))
sketch2.addConstraint(Sketcher.Constraint("Horizontal", 36, 2, 37, 2))
sketch2.addConstraint(Sketcher.Constraint("Horizontal", 41, 2, 44, 2))
sketch2.addConstraint(Sketcher.Constraint("Horizontal", 43, 2, 50, 2))
sketch2.addConstraint(Sketcher.Constraint("Horizontal", 35, 2, 56, 2))
sketch2.addConstraint(Sketcher.Constraint("Horizontal", 37, 2, 58, 2))
sketch2.addConstraint(Sketcher.Constraint("Horizontal", 48, 2, 62, 2))
sketch2.addConstraint(Sketcher.Constraint("Horizontal", 46, 2, 63, 2))
sketch2.addConstraint(Sketcher.Constraint("Horizontal", 65, 2, 66, 2))
sketch2.addConstraint(Sketcher.Constraint("Horizontal", 44, 2, 71, 2))
sketch2.addConstraint(Sketcher.Constraint("Horizontal", 68, 2, 76, 2))
sketch2.addConstraint(Sketcher.Constraint("Vertical", 4, 2, 5, 2))
sketch2.addConstraint(Sketcher.Constraint("Vertical", 12, 2, 32, 2))
sketch2.addConstraint(Sketcher.Constraint("Vertical", 47, 2, 50, 2))
sketch2.addConstraint(Sketcher.Constraint("Equal", 2, 1))
sketch2.addConstraint(Sketcher.Constraint("Equal", 74, 7))
sketch2.addConstraint(Sketcher.Constraint("Equal", 78, 10))
sketch2.addConstraint(Sketcher.Constraint("Equal", 68, 32))
sketch2.addConstraint(Sketcher.Constraint("Equal", 53, 50))
sketch2.addConstraint(Sketcher.Constraint("Diameter", 8, 6.0))
sketch2.addConstraint(Sketcher.Constraint("Radius", 5, 4.200001))
sketch2.addConstraint(Sketcher.Constraint("DistanceX", 11, 2, 11, 1, 6.0))
sketch2.addConstraint(Sketcher.Constraint("DistanceX", 0, 2, 0, 1, 63.5))
sketch2.addConstraint(Sketcher.Constraint("DistanceX", 51, 1, 51, 2, 46.7))
sketch2.addConstraint(Sketcher.Constraint("DistanceX", -1, 1, 14, 2, 4.2))
sketch2.addConstraint(Sketcher.Constraint("DistanceY", 5, 3, -1, 1, 27.55))
sketch2.addConstraint(Sketcher.Constraint("DistanceX", 9, 3, -1, 1, 27.55))
sketch2.addConstraint(Sketcher.Constraint("DistanceX", 5, 3, -1, 1, 15.874999))
pad2 = doc.addObject("PartDesign::Pad", "Pad001")
body.addObject(pad2)
pad2.Profile = sketch2
pad2.Length = 7

doc.recompute()
